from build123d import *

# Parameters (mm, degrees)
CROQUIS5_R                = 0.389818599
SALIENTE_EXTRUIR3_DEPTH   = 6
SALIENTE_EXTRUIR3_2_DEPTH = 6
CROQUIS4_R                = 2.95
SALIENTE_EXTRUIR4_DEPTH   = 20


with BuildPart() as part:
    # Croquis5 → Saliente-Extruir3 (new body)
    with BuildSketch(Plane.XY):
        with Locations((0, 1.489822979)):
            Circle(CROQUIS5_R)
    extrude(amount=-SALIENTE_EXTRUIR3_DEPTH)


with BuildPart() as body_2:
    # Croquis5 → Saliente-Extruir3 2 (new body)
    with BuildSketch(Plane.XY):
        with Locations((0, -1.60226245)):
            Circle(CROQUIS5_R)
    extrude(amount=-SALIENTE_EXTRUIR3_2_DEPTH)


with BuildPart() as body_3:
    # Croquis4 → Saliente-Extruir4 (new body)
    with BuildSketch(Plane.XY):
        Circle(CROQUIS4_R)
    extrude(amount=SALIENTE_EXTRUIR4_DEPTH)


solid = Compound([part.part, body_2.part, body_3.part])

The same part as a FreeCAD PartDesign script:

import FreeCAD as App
import Part
import Sketcher

V = App.Vector

doc = App.newDocument("Part")
params = doc.addObject("Spreadsheet::Sheet", "Params")
for row, (alias, value) in enumerate([
    ("pad1_length", "6 mm"),
    ("pad2_length", "6 mm"),
    ("sketch3_diameter", "5.9 mm"),
    ("pad3_length", "20 mm"),
], start=1):
    params.set(f"A{row}", alias)
    params.set(f"B{row}", "=" + value)
    params.setAlias(f"B{row}", alias)

body = doc.addObject("PartDesign::Body", "Body")

sketch1 = doc.addObject("Sketcher::SketchObject", "Sketch")
body.addObject(sketch1)
sketch1.AttachmentSupport = (doc.XY_Plane, [""])
sketch1.MapMode = "FlatFace"
sketch1.addGeometry(Part.Circle(V(0, 1.49, 0), V(0, 0, 1), 0.39), False)
sketch1.addConstraint([
    Sketcher.Constraint("PointOnObject", 0, 3, -2),
    Sketcher.Constraint("Diameter", 0, 0.779637),
    Sketcher.Constraint("DistanceY", -1, 1, 0, 3, 1.489823),
])
pad1 = doc.addObject("PartDesign::Pad", "Pad")
body.addObject(pad1)
pad1.Profile = sketch1
pad1.setExpression("Length", "Params.pad1_length")
pad1.Reversed = True
body2 = doc.addObject("PartDesign::Body", "Body001")

sketch2 = doc.addObject("Sketcher::SketchObject", "Sketch001")
body2.addObject(sketch2)
sketch2.AttachmentSupport = (doc.getObject("XY_Plane001"), [""])
sketch2.MapMode = "FlatFace"
sketch2.addGeometry(Part.Circle(V(0, -1.6, 0), V(0, 0, 1), 0.39), False)
sketch2.addConstraint([
    Sketcher.Constraint("PointOnObject", 0, 3, -2),
    Sketcher.Constraint("Diameter", 0, 0.779637),
    Sketcher.Constraint("DistanceY", 0, 3, -1, 1, 1.602262),
])
pad2 = doc.addObject("PartDesign::Pad", "Pad001")
body2.addObject(pad2)
pad2.Profile = sketch2
pad2.setExpression("Length", "Params.pad2_length")
pad2.Reversed = True
body3 = doc.addObject("PartDesign::Body", "Body002")

sketch3 = doc.addObject("Sketcher::SketchObject", "Sketch002")
body3.addObject(sketch3)
sketch3.AttachmentSupport = (doc.getObject("XY_Plane002"), [""])
sketch3.MapMode = "FlatFace"
sketch3.addGeometry(Part.Circle(V(0, 0, 0), V(0, 0, 1), 3), False)
sketch3.addConstraint([
    Sketcher.Constraint("Coincident", 0, 3, -1, 1),
    Sketcher.Constraint("Diameter", 0, 5.9),
])
sketch3.setExpression("Constraints[1]", "Params.sketch3_diameter")
pad3 = doc.addObject("PartDesign::Pad", "Pad002")
body3.addObject(pad3)
pad3.Profile = sketch3
pad3.setExpression("Length", "Params.pad3_length")

doc.recompute()
